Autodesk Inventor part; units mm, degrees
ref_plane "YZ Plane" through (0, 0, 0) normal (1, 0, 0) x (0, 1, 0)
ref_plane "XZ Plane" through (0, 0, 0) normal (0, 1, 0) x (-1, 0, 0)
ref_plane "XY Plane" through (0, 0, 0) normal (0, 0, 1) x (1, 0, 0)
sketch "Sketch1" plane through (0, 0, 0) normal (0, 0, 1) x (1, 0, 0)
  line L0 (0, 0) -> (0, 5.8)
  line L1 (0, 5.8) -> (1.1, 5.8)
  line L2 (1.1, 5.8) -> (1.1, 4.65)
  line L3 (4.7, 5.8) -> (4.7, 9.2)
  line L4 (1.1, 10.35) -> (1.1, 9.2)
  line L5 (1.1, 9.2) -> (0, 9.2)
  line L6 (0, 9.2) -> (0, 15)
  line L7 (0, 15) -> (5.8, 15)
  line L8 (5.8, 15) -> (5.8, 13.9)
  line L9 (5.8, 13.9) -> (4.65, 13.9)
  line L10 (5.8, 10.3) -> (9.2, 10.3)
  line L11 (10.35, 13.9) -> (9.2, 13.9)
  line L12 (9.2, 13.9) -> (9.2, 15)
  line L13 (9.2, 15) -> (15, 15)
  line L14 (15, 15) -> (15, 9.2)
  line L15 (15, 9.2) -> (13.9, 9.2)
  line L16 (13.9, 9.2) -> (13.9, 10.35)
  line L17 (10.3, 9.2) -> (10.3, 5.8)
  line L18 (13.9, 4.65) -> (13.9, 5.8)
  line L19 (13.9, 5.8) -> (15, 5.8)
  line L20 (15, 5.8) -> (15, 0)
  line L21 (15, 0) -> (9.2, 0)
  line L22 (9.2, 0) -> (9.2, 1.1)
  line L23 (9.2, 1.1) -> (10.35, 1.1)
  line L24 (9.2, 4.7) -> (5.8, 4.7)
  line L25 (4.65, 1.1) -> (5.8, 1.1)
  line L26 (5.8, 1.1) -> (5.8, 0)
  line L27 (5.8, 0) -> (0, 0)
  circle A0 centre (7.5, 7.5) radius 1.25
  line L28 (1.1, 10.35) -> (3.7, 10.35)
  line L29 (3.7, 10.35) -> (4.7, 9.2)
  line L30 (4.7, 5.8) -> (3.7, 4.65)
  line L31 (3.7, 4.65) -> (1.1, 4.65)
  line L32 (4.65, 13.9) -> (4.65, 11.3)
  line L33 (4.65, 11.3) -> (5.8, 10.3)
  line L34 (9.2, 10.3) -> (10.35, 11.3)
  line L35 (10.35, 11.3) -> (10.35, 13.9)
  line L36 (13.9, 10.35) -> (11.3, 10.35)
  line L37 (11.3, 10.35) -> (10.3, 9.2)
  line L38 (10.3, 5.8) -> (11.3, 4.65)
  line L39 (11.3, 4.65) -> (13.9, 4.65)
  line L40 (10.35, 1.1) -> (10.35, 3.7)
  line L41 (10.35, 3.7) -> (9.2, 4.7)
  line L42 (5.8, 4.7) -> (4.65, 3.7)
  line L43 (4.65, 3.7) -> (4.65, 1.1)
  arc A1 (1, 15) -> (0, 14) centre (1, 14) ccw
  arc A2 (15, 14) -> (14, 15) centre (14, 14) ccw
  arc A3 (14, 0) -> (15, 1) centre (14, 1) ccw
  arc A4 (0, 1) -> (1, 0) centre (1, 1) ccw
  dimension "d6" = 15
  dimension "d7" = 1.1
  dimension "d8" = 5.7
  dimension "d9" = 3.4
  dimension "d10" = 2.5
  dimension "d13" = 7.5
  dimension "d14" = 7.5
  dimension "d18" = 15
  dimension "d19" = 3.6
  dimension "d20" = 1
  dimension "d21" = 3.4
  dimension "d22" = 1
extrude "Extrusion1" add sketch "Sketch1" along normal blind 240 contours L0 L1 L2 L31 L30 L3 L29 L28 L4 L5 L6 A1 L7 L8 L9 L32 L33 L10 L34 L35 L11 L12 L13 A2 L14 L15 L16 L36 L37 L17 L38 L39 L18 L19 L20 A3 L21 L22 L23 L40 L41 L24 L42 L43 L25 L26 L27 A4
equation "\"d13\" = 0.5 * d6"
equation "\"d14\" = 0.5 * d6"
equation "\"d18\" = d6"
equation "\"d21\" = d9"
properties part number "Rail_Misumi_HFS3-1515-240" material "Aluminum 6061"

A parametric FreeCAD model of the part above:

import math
import FreeCAD as App
import Part
import Sketcher
from FreeCAD import Vector

doc = App.newDocument("Part")
body = doc.addObject("PartDesign::Body", "Body")

# Sketch on XY plane
sketch1 = body.newObject("Sketcher::SketchObject", "Sketch")
sketch1.AttachmentSupport = (doc.getObject("XY_Plane"), [""])
sketch1.MapMode = "FlatFace"
sketch1.addGeometry(Part.LineSegment(Vector(0, 5.8, 0), Vector(0, 1, 0)), False)
sketch1.addGeometry(Part.ArcOfCircle(Part.Circle(Vector(1, 1, 0), Vector(0, 0, 1), 1), math.radians(180), math.radians(270)), False)
sketch1.addGeometry(Part.LineSegment(Vector(1, 0, 0), Vector(5.8, 0, 0)), False)
sketch1.addGeometry(Part.LineSegment(Vector(5.8, 0, 0), Vector(5.8, 1.1, 0)), False)
sketch1.addGeometry(Part.LineSegment(Vector(5.8, 1.1, 0), Vector(4.7, 1.1, 0)), False)
sketch1.addGeometry(Part.LineSegment(Vector(4.7, 1.1, 0), Vector(4.7, 3.7, 0)), False)
sketch1.addGeometry(Part.LineSegment(Vector(4.7, 3.7, 0), Vector(5.8, 4.7, 0)), False)
sketch1.addGeometry(Part.LineSegment(Vector(5.8, 4.7, 0), Vector(9.2, 4.7, 0)), False)
sketch1.addGeometry(Part.LineSegment(Vector(9.2, 4.7, 0), Vector(10.3, 3.7, 0)), False)
sketch1.addGeometry(Part.LineSegment(Vector(10.3, 3.7, 0), Vector(10.3, 1.1, 0)), False)
sketch1.addGeometry(Part.LineSegment(Vector(10.3, 1.1, 0), Vector(9.2, 1.1, 0)), False)
sketch1.addGeometry(Part.LineSegment(Vector(9.2, 1.1, 0), Vector(9.2, 0, 0)), False)
sketch1.addGeometry(Part.LineSegment(Vector(9.2, 0, 0), Vector(14, 0, 0)), False)
sketch1.addGeometry(Part.ArcOfCircle(Part.Circle(Vector(14, 1, 0), Vector(0, 0, 1), 1), math.radians(-90), math.radians(0)), False)
sketch1.addGeometry(Part.LineSegment(Vector(15, 1, 0), Vector(15, 5.8, 0)), False)
sketch1.addGeometry(Part.LineSegment(Vector(15, 5.8, 0), Vector(13.9, 5.8, 0)), False)
sketch1.addGeometry(Part.LineSegment(Vector(13.9, 5.8, 0), Vector(13.9, 4.7, 0)), False)
sketch1.addGeometry(Part.LineSegment(Vector(13.9, 4.7, 0), Vector(11.3, 4.7, 0)), False)
sketch1.addGeometry(Part.LineSegment(Vector(11.3, 4.7, 0), Vector(10.3, 5.8, 0)), False)
sketch1.addGeometry(Part.LineSegment(Vector(10.3, 5.8, 0), Vector(10.3, 9.2, 0)), False)
sketch1.addGeometry(Part.LineSegment(Vector(10.3, 9.2, 0), Vector(11.3, 10.3, 0)), False)
sketch1.addGeometry(Part.LineSegment(Vector(11.3, 10.3, 0), Vector(13.9, 10.3, 0)), False)
sketch1.addGeometry(Part.LineSegment(Vector(13.9, 10.3, 0), Vector(13.9, 9.2, 0)), False)
sketch1.addGeometry(Part.LineSegment(Vector(13.9, 9.2, 0), Vector(15, 9.2, 0)), False)
sketch1.addGeometry(Part.LineSegment(Vector(15, 9.2, 0), Vector(15, 14, 0)), False)
sketch1.addGeometry(Part.ArcOfCircle(Part.Circle(Vector(14, 14, 0), Vector(0, 0, 1), 1), math.radians(0), math.radians(90)), False)
sketch1.addGeometry(Part.LineSegment(Vector(14, 15, 0), Vector(9.2, 15, 0)), False)
sketch1.addGeometry(Part.LineSegment(Vector(9.2, 15, 0), Vector(9.2, 13.9, 0)), False)
sketch1.addGeometry(Part.LineSegment(Vector(9.2, 13.9, 0), Vector(10.3, 13.9, 0)), False)
sketch1.addGeometry(Part.LineSegment(Vector(10.3, 13.9, 0), Vector(10.3, 11.3, 0)), False)
sketch1.addGeometry(Part.LineSegment(Vector(10.3, 11.3, 0), Vector(9.2, 10.3, 0)), False)
sketch1.addGeometry(Part.LineSegment(Vector(9.2, 10.3, 0), Vector(5.8, 10.3, 0)), False)
sketch1.addGeometry(Part.LineSegment(Vector(5.8, 10.3, 0), Vector(4.7, 11.3, 0)), False)
sketch1.addGeometry(Part.LineSegment(Vector(4.7, 11.3, 0), Vector(4.7, 13.9, 0)), False)
sketch1.addGeometry(Part.LineSegment(Vector(4.7, 13.9, 0), Vector(5.8, 13.9, 0)), False)
sketch1.addGeometry(Part.LineSegment(Vector(5.8, 13.9, 0), Vector(5.8, 15, 0)), False)
sketch1.addGeometry(Part.LineSegment(Vector(5.8, 15, 0), Vector(1, 15, 0)), False)
sketch1.addGeometry(Part.ArcOfCircle(Part.Circle(Vector(1, 14, 0), Vector(0, 0, 1), 1), math.radians(90), math.radians(180)), False)
sketch1.addGeometry(Part.LineSegment(Vector(0, 14, 0), Vector(0, 9.2, 0)), False)
sketch1.addGeometry(Part.LineSegment(Vector(0, 9.2, 0), Vector(1.1, 9.2, 0)), False)
sketch1.addGeometry(Part.LineSegment(Vector(1.1, 9.2, 0), Vector(1.1, 10.3, 0)), False)
sketch1.addGeometry(Part.LineSegment(Vector(1.1, 10.3, 0), Vector(3.7, 10.3, 0)), False)
sketch1.addGeometry(Part.LineSegment(Vector(3.7, 10.3, 0), Vector(4.7, 9.2, 0)), False)
sketch1.addGeometry(Part.LineSegment(Vector(4.7, 9.2, 0), Vector(4.7, 5.8, 0)), False)
sketch1.addGeometry(Part.LineSegment(Vector(4.7, 5.8, 0), Vector(3.7, 4.7, 0)), False)
sketch1.addGeometry(Part.LineSegment(Vector(3.7, 4.7, 0), Vector(1.1, 4.7, 0)), False)
sketch1.addGeometry(Part.LineSegment(Vector(1.1, 4.7, 0), Vector(1.1, 5.8, 0)), False)
sketch1.addGeometry(Part.LineSegment(Vector(1.1, 5.8, 0), Vector(0, 5.8, 0)), False)
sketch1.addGeometry(Part.Circle(Vector(7.5, 7.5, 0), Vector(0, 0, 1), 1.2), False)
sketch1.addConstraint(Sketcher.Constraint("Tangent", 0, 2, 1, 1))
sketch1.addConstraint(Sketcher.Constraint("Tangent", 1, 2, 2, 1))
sketch1.addConstraint(Sketcher.Constraint("Coincident", 2, 2, 3, 1))
sketch1.addConstraint(Sketcher.Constraint("Coincident", 3, 2, 4, 1))
sketch1.addConstraint(Sketcher.Constraint("Coincident", 4, 2, 5, 1))
sketch1.addConstraint(Sketcher.Constraint("Coincident", 5, 2, 6, 1))
sketch1.addConstraint(Sketcher.Constraint("Coincident", 6, 2, 7, 1))
sketch1.addConstraint(Sketcher.Constraint("Coincident", 7, 2, 8, 1))
sketch1.addConstraint(Sketcher.Constraint("Coincident", 8, 2, 9, 1))
sketch1.addConstraint(Sketcher.Constraint("Coincident", 9, 2, 10, 1))
sketch1.addConstraint(Sketcher.Constraint("Coincident", 10, 2, 11, 1))
sketch1.addConstraint(Sketcher.Constraint("Coincident", 11, 2, 12, 1))
sketch1.addConstraint(Sketcher.Constraint("Tangent", 12, 2, 13, 1))
sketch1.addConstraint(Sketcher.Constraint("Tangent", 13, 2, 14, 1))
sketch1.addConstraint(Sketcher.Constraint("Coincident", 14, 2, 15, 1))
sketch1.addConstraint(Sketcher.Constraint("Coincident", 15, 2, 16, 1))
sketch1.addConstraint(Sketcher.Constraint("Coincident", 16, 2, 17, 1))
sketch1.addConstraint(Sketcher.Constraint("Coincident", 17, 2, 18, 1))
sketch1.addConstraint(Sketcher.Constraint("Coincident", 18, 2, 19, 1))
sketch1.addConstraint(Sketcher.Constraint("Coincident", 19, 2, 20, 1))
sketch1.addConstraint(Sketcher.Constraint("Coincident", 20, 2, 21, 1))
sketch1.addConstraint(Sketcher.Constraint("Coincident", 21, 2, 22, 1))
sketch1.addConstraint(Sketcher.Constraint("Coincident", 22, 2, 23, 1))
sketch1.addConstraint(Sketcher.Constraint("Coincident", 23, 2, 24, 1))
sketch1.addConstraint(Sketcher.Constraint("Tangent", 24, 2, 25, 1))
sketch1.addConstraint(Sketcher.Constraint("Tangent", 25, 2, 26, 1))
sketch1.addConstraint(Sketcher.Constraint("Coincident", 26, 2, 27, 1))
sketch1.addConstraint(Sketcher.Constraint("Coincident", 27, 2, 28, 1))
sketch1.addConstraint(Sketcher.Constraint("Coincident", 28, 2, 29, 1))
sketch1.addConstraint(Sketcher.Constraint("Coincident", 29, 2, 30, 1))
sketch1.addConstraint(Sketcher.Constraint("Coincident", 30, 2, 31, 1))
sketch1.addConstraint(Sketcher.Constraint("Coincident", 31, 2, 32, 1))
sketch1.addConstraint(Sketcher.Constraint("Coincident", 32, 2, 33, 1))
sketch1.addConstraint(Sketcher.Constraint("Coincident", 33, 2, 34, 1))
sketch1.addConstraint(Sketcher.Constraint("Coincident", 34, 2, 35, 1))
sketch1.addConstraint(Sketcher.Constraint("Coincident", 35, 2, 36, 1))
sketch1.addConstraint(Sketcher.Constraint("Tangent", 36, 2, 37, 1))
sketch1.addConstraint(Sketcher.Constraint("Tangent", 37, 2, 38, 1))
sketch1.addConstraint(Sketcher.Constraint("Coincident", 38, 2, 39, 1))
sketch1.addConstraint(Sketcher.Constraint("Coincident", 39, 2, 40, 1))
sketch1.addConstraint(Sketcher.Constraint("Coincident", 40, 2, 41, 1))
sketch1.addConstraint(Sketcher.Constraint("Coincident", 41, 2, 42, 1))
sketch1.addConstraint(Sketcher.Constraint("Coincident", 42, 2, 43, 1))
sketch1.addConstraint(Sketcher.Constraint("Coincident", 43, 2, 44, 1))
sketch1.addConstraint(Sketcher.Constraint("Coincident", 44, 2, 45, 1))
sketch1.addConstraint(Sketcher.Constraint("Coincident", 45, 2, 46, 1))
sketch1.addConstraint(Sketcher.Constraint("Coincident", 46, 2, 47, 1))
sketch1.addConstraint(Sketcher.Constraint("Coincident", 47, 2, 0, 1))
sketch1.addConstraint(Sketcher.Constraint("Vertical", 0))
sketch1.addConstraint(Sketcher.Constraint("Horizontal", 2))
sketch1.addConstraint(Sketcher.Constraint("Vertical", 3))
sketch1.addConstraint(Sketcher.Constraint("Horizontal", 4))
sketch1.addConstraint(Sketcher.Constraint("Vertical", 5))
sketch1.addConstraint(Sketcher.Constraint("Horizontal", 7))
sketch1.addConstraint(Sketcher.Constraint("Vertical", 9))
sketch1.addConstraint(Sketcher.Constraint("Horizontal", 10))
sketch1.addConstraint(Sketcher.Constraint("Vertical", 11))
sketch1.addConstraint(Sketcher.Constraint("Horizontal", 12))
sketch1.addConstraint(Sketcher.Constraint("Vertical", 14))
sketch1.addConstraint(Sketcher.Constraint("Horizontal", 15))
sketch1.addConstraint(Sketcher.Constraint("Vertical", 16))
sketch1.addConstraint(Sketcher.Constraint("Horizontal", 17))
sketch1.addConstraint(Sketcher.Constraint("Vertical", 19))
sketch1.addConstraint(Sketcher.Constraint("Horizontal", 21))
sketch1.addConstraint(Sketcher.Constraint("Vertical", 22))
sketch1.addConstraint(Sketcher.Constraint("Horizontal", 23))
sketch1.addConstraint(Sketcher.Constraint("Vertical", 24))
sketch1.addConstraint(Sketcher.Constraint("Horizontal", 26))
sketch1.addConstraint(Sketcher.Constraint("Vertical", 27))
sketch1.addConstraint(Sketcher.Constraint("Horizontal", 28))
sketch1.addConstraint(Sketcher.Constraint("Vertical", 29))
sketch1.addConstraint(Sketcher.Constraint("Horizontal", 31))
sketch1.addConstraint(Sketcher.Constraint("Vertical", 33))
sketch1.addConstraint(Sketcher.Constraint("Horizontal", 34))
sketch1.addConstraint(Sketcher.Constraint("Vertical", 35))
sketch1.addConstraint(Sketcher.Constraint("Horizontal", 36))
sketch1.addConstraint(Sketcher.Constraint("Vertical", 38))
sketch1.addConstraint(Sketcher.Constraint("Horizontal", 39))
sketch1.addConstraint(Sketcher.Constraint("Vertical", 40))
sketch1.addConstraint(Sketcher.Constraint("Horizontal", 41))
sketch1.addConstraint(Sketcher.Constraint("Vertical", 43))
sketch1.addConstraint(Sketcher.Constraint("Horizontal", 45))
sketch1.addConstraint(Sketcher.Constraint("Vertical", 46))
sketch1.addConstraint(Sketcher.Constraint("Horizontal", 47))
sketch1.addConstraint(Sketcher.Constraint("Equal", 1, 13))
sketch1.addConstraint(Sketcher.Constraint("Equal", 13, 25))
sketch1.addConstraint(Sketcher.Constraint("Equal", 25, 37))
sketch1.addConstraint(Sketcher.Constraint("PointOnObject", 0, 2, -2))
sketch1.addConstraint(Sketcher.Constraint("PointOnObject", 1, 2, -1))
sketch1.addConstraint(Sketcher.Constraint("PointOnObject", 11, 2, -1))
sketch1.addConstraint(Sketcher.Constraint("PointOnObject", 37, 2, -2))
sketch1.addConstraint(Sketcher.Constraint("Perpendicular", 6, 18))
sketch1.addConstraint(Sketcher.Constraint("Perpendicular", 8, 20))
sketch1.addConstraint(Sketcher.Constraint("Perpendicular", 18, 30))
sketch1.addConstraint(Sketcher.Constraint("Perpendicular", 20, 32))
sketch1.addConstraint(Sketcher.Constraint("Perpendicular", 30, 42))
sketch1.addConstraint(Sketcher.Constraint("Perpendicular", 32, 44))
sketch1.addConstraint(Sketcher.Constraint("Horizontal", 25, 3, 37, 3))
sketch1.addConstraint(Sketcher.Constraint("Horizontal", 5, 2, 8, 2))
sketch1.addConstraint(Sketcher.Constraint("Horizontal", 4, 2, 9, 2))
sketch1.addConstraint(Sketcher.Constraint("Horizontal", 15, 2, 18, 2))
sketch1.addConstraint(Sketcher.Constraint("Horizontal", 19, 2, 22, 2))
sketch1.addConstraint(Sketcher.Constraint("Horizontal", 29, 2, 32, 2))
sketch1.addConstraint(Sketcher.Constraint("Horizontal", 28, 2, 33, 2))
sketch1.addConstraint(Sketcher.Constraint("Horizontal", 23, 2, 38, 2))
sketch1.addConstraint(Sketcher.Constraint("Horizontal", 21, 2, 40, 2))
sketch1.addConstraint(Sketcher.Constraint("Horizontal", 39, 2, 42, 2))
sketch1.addConstraint(Sketcher.Constraint("Horizontal", 18, 2, 43, 2))
sketch1.addConstraint(Sketcher.Constraint("Horizontal", 17, 2, 44, 2))
sketch1.addConstraint(Sketcher.Constraint("Horizontal", 43, 2, 46, 2))
sketch1.addConstraint(Sketcher.Constraint("Vertical", 13, 3, 25, 3))
sketch1.addConstraint(Sketcher.Constraint("Vertical", 3, 2, 6, 2))
sketch1.addConstraint(Sketcher.Constraint("Vertical", 7, 2, 10, 2))
sketch1.addConstraint(Sketcher.Constraint("Vertical", 17, 2, 20, 2))
sketch1.addConstraint(Sketcher.Constraint("Vertical", 16, 2, 21, 2))
sketch1.addConstraint(Sketcher.Constraint("Vertical", 11, 2, 26, 2))
sketch1.addConstraint(Sketcher.Constraint("Vertical", 9, 2, 28, 2))
sketch1.addConstraint(Sketcher.Constraint("Vertical", 27, 2, 30, 2))
sketch1.addConstraint(Sketcher.Constraint("Vertical", 6, 2, 31, 2))
sketch1.addConstraint(Sketcher.Constraint("Vertical", 5, 2, 32, 2))
sketch1.addConstraint(Sketcher.Constraint("Vertical", 31, 2, 34, 2))
sketch1.addConstraint(Sketcher.Constraint("Vertical", 40, 2, 45, 2))
sketch1.addConstraint(Sketcher.Constraint("Equal", 2, 12))
sketch1.addConstraint(Sketcher.Constraint("Equal", 23, 39))
sketch1.addConstraint(Sketcher.Constraint("Equal", 21, 41))
sketch1.addConstraint(Sketcher.Constraint("Equal", 36, 0))
sketch1.addConstraint(Sketcher.Constraint("Equal", 47, 3))
sketch1.addConstraint(Sketcher.Constraint("Equal", 45, 5))
sketch1.addConstraint(Sketcher.Constraint("Equal", 34, 16))
sketch1.addConstraint(Sketcher.Constraint("Equal", 31, 19))
sketch1.addConstraint(Sketcher.Constraint("Equal", 14, 24))
sketch1.addConstraint(Sketcher.Constraint("Equal", 11, 27))
sketch1.addConstraint(Sketcher.Constraint("Equal", 9, 29))
sketch1.addConstraint(Sketcher.Constraint("Radius", 1, 1.0))
sketch1.addConstraint(Sketcher.Constraint("Diameter", 48, 2.5))
sketch1.addConstraint(Sketcher.Constraint("DistanceX", 7, 1, 7, 2, 3.4))
sketch1.addConstraint(Sketcher.Constraint("DistanceX", 15, 2, 15, 1, 1.1))
sketch1.addConstraint(Sketcher.Constraint("DistanceX", -1, 1, 13, 2, 15.0))
sketch1.addConstraint(Sketcher.Constraint("DistanceY", 5, 2, 6, 2, 1.0))
sketch1.addConstraint(Sketcher.Constraint("DistanceX", -1, 1, 48, 3, 7.5))
sketch1.addConstraint(Sketcher.Constraint("DistanceY", -1, 1, 48, 3, 7.5))
sketch1.addConstraint(Sketcher.Constraint("DistanceY", 3, 2, 6, 2, 3.6))
sketch1.addConstraint(Sketcher.Constraint("DistanceX", 4, 2, 4, 1, 1.15))
pad1 = body.newObject("PartDesign::Pad", "Pad")
pad1.Profile = sketch1
pad1.Length = 240

doc.recompute()
